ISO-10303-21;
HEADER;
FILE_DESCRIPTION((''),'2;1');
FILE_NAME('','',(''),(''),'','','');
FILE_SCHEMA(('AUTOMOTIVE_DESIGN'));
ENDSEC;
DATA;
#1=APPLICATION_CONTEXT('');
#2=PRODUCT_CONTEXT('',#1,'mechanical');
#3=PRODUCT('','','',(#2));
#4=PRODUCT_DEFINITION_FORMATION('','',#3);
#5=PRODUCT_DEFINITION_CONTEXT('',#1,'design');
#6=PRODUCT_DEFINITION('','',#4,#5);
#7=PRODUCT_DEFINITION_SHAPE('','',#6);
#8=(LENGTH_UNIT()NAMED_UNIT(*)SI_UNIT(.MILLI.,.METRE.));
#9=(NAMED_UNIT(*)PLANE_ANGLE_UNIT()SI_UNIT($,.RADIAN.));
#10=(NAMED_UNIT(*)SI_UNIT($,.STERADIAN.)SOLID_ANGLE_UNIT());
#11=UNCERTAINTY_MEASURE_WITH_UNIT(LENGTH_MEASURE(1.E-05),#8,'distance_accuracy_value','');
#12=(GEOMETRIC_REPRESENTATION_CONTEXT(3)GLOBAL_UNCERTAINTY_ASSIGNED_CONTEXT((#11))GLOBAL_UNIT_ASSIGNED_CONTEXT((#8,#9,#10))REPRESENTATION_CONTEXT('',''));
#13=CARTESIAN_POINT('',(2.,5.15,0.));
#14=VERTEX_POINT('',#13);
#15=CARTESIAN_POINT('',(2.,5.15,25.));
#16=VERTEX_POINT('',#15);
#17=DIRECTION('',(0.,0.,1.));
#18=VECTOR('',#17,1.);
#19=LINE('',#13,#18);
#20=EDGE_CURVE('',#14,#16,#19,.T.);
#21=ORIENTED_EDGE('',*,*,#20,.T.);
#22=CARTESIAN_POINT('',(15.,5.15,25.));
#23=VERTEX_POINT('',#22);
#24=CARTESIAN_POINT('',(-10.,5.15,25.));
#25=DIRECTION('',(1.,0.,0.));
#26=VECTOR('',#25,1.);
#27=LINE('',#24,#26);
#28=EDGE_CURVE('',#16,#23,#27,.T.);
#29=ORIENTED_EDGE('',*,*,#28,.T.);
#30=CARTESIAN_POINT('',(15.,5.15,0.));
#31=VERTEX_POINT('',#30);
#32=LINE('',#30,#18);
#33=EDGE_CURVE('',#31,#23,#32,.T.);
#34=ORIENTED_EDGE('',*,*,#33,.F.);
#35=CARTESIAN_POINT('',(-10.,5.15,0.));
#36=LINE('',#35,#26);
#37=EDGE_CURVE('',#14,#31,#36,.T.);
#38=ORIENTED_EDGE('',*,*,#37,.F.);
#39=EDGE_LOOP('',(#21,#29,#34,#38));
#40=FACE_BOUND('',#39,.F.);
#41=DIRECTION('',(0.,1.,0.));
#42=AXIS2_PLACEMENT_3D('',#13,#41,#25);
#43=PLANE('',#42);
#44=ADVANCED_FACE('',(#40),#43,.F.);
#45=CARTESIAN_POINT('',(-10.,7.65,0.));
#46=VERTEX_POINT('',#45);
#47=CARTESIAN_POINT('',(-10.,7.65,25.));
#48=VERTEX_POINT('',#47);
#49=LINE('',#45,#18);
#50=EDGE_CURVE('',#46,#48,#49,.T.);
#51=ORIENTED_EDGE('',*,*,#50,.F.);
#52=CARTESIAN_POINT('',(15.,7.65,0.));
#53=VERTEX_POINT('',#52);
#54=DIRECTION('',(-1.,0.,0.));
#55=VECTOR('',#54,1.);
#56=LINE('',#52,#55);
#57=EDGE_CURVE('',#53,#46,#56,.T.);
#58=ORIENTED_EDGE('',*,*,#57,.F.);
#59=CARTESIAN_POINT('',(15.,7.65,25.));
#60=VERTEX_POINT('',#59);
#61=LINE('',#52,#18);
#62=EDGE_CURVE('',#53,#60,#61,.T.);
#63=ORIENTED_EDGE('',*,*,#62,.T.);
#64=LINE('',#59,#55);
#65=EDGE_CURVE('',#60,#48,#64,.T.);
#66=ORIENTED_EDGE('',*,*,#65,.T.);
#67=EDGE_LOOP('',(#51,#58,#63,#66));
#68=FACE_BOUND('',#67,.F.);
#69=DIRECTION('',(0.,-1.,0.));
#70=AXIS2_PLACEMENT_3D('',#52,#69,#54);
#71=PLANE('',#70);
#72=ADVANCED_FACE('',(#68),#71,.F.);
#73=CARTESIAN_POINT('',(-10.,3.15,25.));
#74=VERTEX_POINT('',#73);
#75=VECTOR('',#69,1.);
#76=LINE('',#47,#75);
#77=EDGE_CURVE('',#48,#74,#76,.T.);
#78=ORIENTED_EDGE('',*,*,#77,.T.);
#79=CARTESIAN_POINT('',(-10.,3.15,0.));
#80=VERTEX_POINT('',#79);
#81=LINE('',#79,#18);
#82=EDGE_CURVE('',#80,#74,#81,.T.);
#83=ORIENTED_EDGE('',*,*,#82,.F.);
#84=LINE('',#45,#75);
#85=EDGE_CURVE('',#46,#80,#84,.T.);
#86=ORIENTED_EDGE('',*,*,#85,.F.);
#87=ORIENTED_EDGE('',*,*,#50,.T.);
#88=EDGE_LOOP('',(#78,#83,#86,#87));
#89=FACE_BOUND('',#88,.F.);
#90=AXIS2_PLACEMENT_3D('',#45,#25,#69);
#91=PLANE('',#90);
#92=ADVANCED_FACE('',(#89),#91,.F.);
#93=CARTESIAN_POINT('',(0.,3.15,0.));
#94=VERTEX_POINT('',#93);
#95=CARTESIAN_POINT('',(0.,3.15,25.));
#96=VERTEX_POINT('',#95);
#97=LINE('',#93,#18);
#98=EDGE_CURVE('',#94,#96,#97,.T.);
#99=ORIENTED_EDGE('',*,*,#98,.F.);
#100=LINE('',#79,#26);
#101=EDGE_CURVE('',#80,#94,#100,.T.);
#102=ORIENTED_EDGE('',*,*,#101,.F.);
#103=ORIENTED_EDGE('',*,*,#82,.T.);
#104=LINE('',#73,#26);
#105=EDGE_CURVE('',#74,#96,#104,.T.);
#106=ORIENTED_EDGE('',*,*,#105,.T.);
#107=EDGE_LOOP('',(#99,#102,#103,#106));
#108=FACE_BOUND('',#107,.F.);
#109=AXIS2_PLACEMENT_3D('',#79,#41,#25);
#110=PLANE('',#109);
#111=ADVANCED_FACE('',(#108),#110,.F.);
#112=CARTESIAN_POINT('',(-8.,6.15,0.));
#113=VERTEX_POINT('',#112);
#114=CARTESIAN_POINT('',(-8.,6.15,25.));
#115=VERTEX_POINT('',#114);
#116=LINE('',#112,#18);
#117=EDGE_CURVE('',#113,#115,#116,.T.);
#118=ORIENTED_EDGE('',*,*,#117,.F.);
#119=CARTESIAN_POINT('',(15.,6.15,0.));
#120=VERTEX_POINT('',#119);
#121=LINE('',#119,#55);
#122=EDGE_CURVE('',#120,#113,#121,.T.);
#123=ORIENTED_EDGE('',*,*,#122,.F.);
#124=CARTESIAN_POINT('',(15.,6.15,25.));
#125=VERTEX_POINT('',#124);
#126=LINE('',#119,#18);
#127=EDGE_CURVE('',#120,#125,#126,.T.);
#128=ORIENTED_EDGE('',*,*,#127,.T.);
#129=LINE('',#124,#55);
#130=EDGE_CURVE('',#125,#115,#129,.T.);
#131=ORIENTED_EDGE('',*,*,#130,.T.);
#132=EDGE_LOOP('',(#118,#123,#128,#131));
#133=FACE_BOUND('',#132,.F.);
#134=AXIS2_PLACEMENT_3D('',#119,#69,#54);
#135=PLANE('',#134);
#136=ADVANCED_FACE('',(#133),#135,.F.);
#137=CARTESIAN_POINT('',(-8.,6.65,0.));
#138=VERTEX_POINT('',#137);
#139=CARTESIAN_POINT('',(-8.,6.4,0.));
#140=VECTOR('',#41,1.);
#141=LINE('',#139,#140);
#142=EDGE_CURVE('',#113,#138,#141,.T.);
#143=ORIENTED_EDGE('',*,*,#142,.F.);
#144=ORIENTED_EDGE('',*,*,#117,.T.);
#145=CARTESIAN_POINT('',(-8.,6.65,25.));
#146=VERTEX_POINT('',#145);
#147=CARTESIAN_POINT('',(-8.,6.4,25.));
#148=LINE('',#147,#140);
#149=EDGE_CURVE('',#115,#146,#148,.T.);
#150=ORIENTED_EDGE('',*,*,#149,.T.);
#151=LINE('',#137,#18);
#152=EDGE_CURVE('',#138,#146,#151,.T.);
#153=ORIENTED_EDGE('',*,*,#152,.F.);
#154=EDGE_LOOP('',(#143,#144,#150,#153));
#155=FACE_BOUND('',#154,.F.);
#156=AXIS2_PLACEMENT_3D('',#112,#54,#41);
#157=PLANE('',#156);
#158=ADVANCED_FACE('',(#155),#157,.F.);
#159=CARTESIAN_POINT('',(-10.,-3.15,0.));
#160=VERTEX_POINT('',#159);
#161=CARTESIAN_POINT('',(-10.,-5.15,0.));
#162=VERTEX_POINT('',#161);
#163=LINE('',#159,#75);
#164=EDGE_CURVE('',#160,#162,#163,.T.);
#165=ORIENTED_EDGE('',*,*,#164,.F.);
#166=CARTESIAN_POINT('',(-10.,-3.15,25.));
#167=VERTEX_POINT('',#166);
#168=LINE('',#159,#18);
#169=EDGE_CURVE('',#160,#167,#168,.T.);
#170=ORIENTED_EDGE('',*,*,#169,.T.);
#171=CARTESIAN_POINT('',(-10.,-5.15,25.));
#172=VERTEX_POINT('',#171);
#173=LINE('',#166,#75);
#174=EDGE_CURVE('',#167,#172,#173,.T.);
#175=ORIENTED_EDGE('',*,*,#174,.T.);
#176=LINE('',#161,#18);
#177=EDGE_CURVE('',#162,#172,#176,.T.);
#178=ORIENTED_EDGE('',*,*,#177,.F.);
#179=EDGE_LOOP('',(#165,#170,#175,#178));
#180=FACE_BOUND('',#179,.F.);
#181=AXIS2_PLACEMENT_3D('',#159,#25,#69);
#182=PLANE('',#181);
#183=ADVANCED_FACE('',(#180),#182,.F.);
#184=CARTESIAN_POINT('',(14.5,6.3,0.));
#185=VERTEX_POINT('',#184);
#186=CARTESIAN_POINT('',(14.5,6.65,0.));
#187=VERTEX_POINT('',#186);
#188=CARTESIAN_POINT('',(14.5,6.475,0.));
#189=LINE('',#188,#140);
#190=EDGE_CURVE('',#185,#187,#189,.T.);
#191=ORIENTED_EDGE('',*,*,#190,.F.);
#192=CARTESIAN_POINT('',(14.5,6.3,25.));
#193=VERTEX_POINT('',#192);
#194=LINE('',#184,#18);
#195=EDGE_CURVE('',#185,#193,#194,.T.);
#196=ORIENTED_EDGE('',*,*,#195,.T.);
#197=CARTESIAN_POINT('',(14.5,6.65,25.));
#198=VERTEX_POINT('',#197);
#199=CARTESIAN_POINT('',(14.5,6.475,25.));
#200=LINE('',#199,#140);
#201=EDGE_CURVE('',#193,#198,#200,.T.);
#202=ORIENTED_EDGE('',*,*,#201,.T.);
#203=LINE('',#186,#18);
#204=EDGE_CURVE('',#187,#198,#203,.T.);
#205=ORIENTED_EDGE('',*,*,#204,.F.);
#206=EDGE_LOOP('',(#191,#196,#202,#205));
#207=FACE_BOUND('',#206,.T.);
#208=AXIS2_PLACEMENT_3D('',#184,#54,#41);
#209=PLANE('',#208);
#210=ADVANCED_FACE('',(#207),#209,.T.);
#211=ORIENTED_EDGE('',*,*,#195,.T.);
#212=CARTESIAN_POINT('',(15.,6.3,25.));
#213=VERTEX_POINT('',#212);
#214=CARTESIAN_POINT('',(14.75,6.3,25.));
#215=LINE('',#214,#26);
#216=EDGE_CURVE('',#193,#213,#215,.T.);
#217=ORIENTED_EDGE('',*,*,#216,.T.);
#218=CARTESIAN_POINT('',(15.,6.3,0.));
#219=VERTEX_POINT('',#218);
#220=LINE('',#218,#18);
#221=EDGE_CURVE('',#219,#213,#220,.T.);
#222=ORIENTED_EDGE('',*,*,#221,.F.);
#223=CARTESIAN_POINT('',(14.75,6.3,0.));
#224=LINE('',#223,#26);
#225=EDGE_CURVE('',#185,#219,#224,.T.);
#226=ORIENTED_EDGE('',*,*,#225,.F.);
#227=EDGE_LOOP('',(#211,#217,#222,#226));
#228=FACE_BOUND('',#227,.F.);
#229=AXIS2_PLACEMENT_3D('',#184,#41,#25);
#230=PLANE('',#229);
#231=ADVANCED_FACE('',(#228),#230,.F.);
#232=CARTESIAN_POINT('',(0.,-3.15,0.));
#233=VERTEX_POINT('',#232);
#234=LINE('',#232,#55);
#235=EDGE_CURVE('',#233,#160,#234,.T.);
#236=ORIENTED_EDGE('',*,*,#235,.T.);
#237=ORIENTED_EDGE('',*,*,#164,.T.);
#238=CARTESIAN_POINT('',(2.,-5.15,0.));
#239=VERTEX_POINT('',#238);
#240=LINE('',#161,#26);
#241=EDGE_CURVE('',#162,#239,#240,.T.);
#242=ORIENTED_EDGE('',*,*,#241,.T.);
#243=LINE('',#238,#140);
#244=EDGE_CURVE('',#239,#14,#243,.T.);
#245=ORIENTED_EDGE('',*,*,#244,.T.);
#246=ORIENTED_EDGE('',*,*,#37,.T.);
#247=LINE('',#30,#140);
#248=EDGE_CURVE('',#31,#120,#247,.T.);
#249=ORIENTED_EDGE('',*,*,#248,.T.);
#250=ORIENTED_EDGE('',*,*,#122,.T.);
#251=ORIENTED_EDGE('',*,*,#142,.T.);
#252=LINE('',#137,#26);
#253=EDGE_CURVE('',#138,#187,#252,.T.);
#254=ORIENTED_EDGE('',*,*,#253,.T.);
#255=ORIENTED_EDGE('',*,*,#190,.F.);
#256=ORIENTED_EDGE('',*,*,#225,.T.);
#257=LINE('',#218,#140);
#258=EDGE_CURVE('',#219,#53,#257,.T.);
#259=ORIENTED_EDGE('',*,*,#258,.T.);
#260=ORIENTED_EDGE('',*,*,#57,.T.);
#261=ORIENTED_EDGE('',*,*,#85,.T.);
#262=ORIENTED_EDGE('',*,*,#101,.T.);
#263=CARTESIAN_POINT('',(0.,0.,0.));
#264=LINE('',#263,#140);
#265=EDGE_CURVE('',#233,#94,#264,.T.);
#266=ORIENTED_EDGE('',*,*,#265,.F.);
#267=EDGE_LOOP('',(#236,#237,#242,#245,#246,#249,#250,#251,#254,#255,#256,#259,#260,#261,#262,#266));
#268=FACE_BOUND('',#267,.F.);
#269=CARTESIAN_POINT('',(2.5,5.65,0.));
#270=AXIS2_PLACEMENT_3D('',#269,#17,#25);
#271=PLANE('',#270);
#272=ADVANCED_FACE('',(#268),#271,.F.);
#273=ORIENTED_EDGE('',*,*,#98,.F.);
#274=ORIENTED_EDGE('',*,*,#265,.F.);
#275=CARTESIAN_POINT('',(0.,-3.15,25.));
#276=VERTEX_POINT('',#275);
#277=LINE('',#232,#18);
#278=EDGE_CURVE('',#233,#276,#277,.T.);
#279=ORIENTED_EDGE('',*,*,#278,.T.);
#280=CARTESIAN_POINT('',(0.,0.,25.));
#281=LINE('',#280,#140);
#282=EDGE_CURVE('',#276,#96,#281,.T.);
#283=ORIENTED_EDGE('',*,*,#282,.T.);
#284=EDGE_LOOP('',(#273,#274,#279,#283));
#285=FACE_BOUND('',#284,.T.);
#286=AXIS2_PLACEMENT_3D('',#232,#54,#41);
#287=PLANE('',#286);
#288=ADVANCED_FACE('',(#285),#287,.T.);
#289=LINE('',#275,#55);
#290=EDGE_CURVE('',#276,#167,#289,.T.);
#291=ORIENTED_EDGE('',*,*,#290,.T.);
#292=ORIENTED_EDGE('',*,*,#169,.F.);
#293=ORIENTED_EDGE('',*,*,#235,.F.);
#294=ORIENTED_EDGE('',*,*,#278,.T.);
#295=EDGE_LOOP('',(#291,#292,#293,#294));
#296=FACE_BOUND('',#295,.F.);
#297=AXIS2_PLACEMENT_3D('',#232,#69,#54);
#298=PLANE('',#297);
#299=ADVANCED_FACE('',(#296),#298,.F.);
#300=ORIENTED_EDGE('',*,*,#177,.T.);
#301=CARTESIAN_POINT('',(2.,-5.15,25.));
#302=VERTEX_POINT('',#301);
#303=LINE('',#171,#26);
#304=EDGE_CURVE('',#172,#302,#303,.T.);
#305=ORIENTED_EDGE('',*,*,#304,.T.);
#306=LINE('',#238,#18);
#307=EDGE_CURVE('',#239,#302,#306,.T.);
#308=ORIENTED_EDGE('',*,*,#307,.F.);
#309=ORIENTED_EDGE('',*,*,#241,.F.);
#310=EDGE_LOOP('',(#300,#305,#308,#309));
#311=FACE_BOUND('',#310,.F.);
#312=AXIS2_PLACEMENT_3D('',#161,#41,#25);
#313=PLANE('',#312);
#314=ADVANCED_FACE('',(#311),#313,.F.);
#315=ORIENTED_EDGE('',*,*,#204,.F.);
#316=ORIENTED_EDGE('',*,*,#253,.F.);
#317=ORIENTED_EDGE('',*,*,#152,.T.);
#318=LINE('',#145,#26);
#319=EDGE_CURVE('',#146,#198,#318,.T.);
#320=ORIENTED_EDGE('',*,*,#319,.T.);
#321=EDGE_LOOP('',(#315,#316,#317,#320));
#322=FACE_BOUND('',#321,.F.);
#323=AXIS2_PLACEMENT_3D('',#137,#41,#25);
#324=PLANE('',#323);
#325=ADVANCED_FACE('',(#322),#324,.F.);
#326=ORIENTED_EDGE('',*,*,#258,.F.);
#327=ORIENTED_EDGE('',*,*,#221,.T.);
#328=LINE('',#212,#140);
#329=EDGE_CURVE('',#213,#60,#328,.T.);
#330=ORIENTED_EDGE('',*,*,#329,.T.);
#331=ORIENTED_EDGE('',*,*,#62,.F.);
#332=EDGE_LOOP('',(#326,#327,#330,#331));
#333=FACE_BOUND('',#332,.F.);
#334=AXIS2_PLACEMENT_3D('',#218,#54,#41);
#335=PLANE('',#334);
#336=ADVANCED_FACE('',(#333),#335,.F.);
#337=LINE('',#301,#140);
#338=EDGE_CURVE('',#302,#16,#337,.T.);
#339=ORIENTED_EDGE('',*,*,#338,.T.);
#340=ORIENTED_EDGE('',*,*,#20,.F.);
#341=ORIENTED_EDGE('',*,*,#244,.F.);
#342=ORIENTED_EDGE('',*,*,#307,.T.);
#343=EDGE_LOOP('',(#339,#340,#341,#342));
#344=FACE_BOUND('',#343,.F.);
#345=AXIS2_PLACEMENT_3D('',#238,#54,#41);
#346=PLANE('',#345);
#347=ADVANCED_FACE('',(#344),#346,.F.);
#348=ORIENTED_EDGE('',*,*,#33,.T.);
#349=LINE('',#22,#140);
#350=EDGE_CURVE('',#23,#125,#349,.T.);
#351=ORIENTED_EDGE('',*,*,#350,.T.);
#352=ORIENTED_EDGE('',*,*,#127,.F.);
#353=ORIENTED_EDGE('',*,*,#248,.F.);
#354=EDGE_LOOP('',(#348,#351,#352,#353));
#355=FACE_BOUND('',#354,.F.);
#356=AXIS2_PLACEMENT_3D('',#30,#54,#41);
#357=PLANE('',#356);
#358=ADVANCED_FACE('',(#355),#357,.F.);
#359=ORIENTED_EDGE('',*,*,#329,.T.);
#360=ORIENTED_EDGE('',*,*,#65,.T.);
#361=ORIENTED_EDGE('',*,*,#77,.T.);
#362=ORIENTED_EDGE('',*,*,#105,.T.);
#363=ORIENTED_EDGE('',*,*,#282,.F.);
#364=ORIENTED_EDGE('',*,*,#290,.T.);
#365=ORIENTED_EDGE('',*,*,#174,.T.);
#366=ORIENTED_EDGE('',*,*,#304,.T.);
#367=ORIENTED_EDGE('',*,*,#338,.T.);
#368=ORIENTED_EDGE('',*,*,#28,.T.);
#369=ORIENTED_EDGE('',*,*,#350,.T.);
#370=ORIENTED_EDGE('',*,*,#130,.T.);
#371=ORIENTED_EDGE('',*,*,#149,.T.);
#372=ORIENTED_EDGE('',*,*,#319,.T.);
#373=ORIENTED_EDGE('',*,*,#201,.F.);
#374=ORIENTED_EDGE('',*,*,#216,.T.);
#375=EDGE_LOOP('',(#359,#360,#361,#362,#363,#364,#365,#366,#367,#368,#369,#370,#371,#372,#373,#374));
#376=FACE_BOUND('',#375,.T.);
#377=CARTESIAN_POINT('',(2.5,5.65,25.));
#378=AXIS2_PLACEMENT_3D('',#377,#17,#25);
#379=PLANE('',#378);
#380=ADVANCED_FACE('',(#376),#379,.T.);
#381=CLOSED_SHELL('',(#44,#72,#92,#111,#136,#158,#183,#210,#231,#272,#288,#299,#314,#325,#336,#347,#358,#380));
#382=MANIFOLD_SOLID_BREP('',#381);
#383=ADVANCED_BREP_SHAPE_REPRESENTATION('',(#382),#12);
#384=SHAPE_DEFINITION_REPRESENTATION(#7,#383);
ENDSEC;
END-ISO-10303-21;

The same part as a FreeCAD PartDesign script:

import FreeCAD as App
import Part
import Sketcher
from FreeCAD import Vector


def add_polygon(sketch, points):
    """Adds a closed chain of lines whose ends are joined by coincident constraints."""
    first, n = sketch.GeometryCount, len(points)
    for a, b in zip(points, points[1:] + points[:1]):
        sketch.addGeometry(Part.LineSegment(App.Vector(*a, 0), App.Vector(*b, 0)), False)
    for i in range(n):
        sketch.addConstraint(Sketcher.Constraint("Coincident", first + i, 2, first + (i + 1) % n, 1))

doc = App.newDocument("Part")
body = doc.addObject("PartDesign::Body", "Body")

# Sketch on XY plane
sketch1 = body.newObject("Sketcher::SketchObject", "Sketch")
sketch1.AttachmentSupport = (doc.getObject("XY_Plane"), [""])
sketch1.MapMode = "FlatFace"
add_polygon(sketch1, [(-10, 3.15), (0, 3.15), (0, -3.15), (-10, -3.15), (-10, -5.15), (2, -5.15), (2, 5.15), (15, 5.15), (15, 6.15), (-8, 6.15), (-8, 6.65), (14.5, 6.65), (14.5, 6.3), (15, 6.3), (15, 7.65), (-10, 7.65)])  # lines 0-15
sketch1.addConstraint(Sketcher.Constraint("Horizontal", 0))
sketch1.addConstraint(Sketcher.Constraint("Vertical", 1))
sketch1.addConstraint(Sketcher.Constraint("Horizontal", 2))
sketch1.addConstraint(Sketcher.Constraint("Vertical", 3))
sketch1.addConstraint(Sketcher.Constraint("Horizontal", 4))
sketch1.addConstraint(Sketcher.Constraint("Vertical", 5))
sketch1.addConstraint(Sketcher.Constraint("Horizontal", 6))
sketch1.addConstraint(Sketcher.Constraint("Vertical", 7))
sketch1.addConstraint(Sketcher.Constraint("Horizontal", 8))
sketch1.addConstraint(Sketcher.Constraint("Vertical", 9))
sketch1.addConstraint(Sketcher.Constraint("Horizontal", 10))
sketch1.addConstraint(Sketcher.Constraint("Vertical", 11))
sketch1.addConstraint(Sketcher.Constraint("Horizontal", 12))
sketch1.addConstraint(Sketcher.Constraint("Vertical", 13))
sketch1.addConstraint(Sketcher.Constraint("Horizontal", 14))
sketch1.addConstraint(Sketcher.Constraint("Vertical", 15))
sketch1.addConstraint(Sketcher.Constraint("Symmetric", 0, 2, 1, 2, -1, 1))
sketch1.addConstraint(Sketcher.Constraint("Vertical", 7, 2, 12, 2))
sketch1.addConstraint(Sketcher.Constraint("Vertical", 3, 2, 14, 2))
sketch1.addConstraint(Sketcher.Constraint("Equal", 12, 9))
sketch1.addConstraint(Sketcher.Constraint("DistanceX", 0, 1, 0, 2, 10.0))
sketch1.addConstraint(Sketcher.Constraint("DistanceX", 4, 1, 4, 2, 12.0))
sketch1.addConstraint(Sketcher.Constraint("DistanceX", 6, 1, 6, 2, 13.0))
sketch1.addConstraint(Sketcher.Constraint("DistanceX", 8, 2, 8, 1, 23.0))
sketch1.addConstraint(Sketcher.Constraint("DistanceY", 3, 2, 3, 1, 2.0))
sketch1.addConstraint(Sketcher.Constraint("DistanceY", 7, 1, 7, 2, 1.0))
sketch1.addConstraint(Sketcher.Constraint("DistanceX", 10, 1, 10, 2, 22.5))
sketch1.addConstraint(Sketcher.Constraint("DistanceY", 1, 2, 1, 1, 6.3))
sketch1.addConstraint(Sketcher.Constraint("DistanceY", 5, 1, 5, 2, 10.3))
sketch1.addConstraint(Sketcher.Constraint("DistanceY", 15, 2, 15, 1, 4.5))
sketch1.addConstraint(Sketcher.Constraint("DistanceY", 11, 2, 11, 1, 0.35))
pad1 = body.newObject("PartDesign::Pad", "Pad")
pad1.Profile = sketch1
pad1.Length = 25

doc.recompute()
